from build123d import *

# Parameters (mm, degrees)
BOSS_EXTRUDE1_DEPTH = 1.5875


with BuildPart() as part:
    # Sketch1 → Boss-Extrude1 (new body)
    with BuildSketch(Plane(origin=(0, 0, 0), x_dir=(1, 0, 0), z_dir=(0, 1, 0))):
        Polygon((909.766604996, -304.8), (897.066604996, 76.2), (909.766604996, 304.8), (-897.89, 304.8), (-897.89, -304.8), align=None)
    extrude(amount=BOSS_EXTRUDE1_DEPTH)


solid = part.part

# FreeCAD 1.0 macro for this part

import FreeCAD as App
import Part
import Sketcher

V = App.Vector
Q = App.Units.Quantity


def add_polygon(sketch, points):
    """Adds a closed chain of lines whose ends are joined by coincident constraints."""
    first, n = sketch.GeometryCount, len(points)
    for a, b in zip(points, points[1:] + points[:1]):
        sketch.addGeometry(Part.LineSegment(App.Vector(*a, 0), App.Vector(*b, 0)), False)
    for i in range(n):
        sketch.addConstraint(Sketcher.Constraint("Coincident", first + i, 2, first + (i + 1) % n, 1))

doc = App.newDocument("Part")
body = doc.addObject("PartDesign::Body", "Body")

# Sketch on XZ plane
sketch1 = body.newObject("Sketcher::SketchObject", "Sketch")
sketch1.AttachmentSupport = (doc.getObject("XZ_Plane"), [""])
sketch1.MapMode = "FlatFace"
add_polygon(sketch1, [(910, 305), (897, -76), (910, -305), (-898, -305), (-898, 305)])  # lines 0-4
sketch1.addConstraint([
    Sketcher.Constraint("Horizontal", 2),
    Sketcher.Constraint("Vertical", 3),
    Sketcher.Constraint("Horizontal", 4),
    Sketcher.Constraint("Symmetric", 1, 2, 4, 2, -1),
    Sketcher.Constraint("DistanceY", 3, 1, 3, 2, Q("24 in")),
    Sketcher.Constraint("DistanceY", 0, 2, -1, 1, Q("3 in")),
    Sketcher.Constraint("DistanceX", 0, 2, 1, 2, Q("0.5 in")),
    Sketcher.Constraint("DistanceX", 2, 2, -1, 1, Q("35.35 in")),
    Sketcher.Constraint("DistanceX", 2, 2, 2, 1, Q("1807.656605 mm")),
])
pad1 = body.newObject("PartDesign::Pad", "Pad")
pad1.Profile = sketch1
pad1.Length = Q("0.0625 in")
pad1.Reversed = True

doc.recompute()
